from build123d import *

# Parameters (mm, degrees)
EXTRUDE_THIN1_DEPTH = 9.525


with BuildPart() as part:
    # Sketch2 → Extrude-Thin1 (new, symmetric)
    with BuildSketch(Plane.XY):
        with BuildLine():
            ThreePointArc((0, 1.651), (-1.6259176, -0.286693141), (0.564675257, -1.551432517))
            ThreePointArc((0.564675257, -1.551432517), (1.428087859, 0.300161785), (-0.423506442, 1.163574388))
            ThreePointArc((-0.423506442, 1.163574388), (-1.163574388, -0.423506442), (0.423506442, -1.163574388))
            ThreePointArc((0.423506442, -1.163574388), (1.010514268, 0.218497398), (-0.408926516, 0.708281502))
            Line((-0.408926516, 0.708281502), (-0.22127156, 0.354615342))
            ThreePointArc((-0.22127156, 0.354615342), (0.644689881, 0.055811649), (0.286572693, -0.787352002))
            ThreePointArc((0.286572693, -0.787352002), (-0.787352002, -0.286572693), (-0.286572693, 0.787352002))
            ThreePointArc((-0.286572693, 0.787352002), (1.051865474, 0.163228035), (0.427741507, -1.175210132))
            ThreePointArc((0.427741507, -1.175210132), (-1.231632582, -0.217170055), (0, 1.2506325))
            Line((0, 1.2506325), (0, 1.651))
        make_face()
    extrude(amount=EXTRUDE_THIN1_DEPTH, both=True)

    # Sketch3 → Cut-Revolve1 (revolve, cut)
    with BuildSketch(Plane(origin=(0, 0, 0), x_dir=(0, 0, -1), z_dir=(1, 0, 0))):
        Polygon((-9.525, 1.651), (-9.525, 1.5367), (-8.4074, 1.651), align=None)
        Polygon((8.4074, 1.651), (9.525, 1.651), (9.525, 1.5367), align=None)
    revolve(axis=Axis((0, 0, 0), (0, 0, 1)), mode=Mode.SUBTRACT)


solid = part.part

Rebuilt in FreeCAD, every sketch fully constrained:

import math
import FreeCAD as App
import Part
import Sketcher
from FreeCAD import Vector
Q = App.Units.Quantity


def add_polygon(sketch, points):
    """Adds a closed chain of lines whose ends are joined by coincident constraints."""
    first, n = sketch.GeometryCount, len(points)
    for a, b in zip(points, points[1:] + points[:1]):
        sketch.addGeometry(Part.LineSegment(App.Vector(*a, 0), App.Vector(*b, 0)), False)
    for i in range(n):
        sketch.addConstraint(Sketcher.Constraint("Coincident", first + i, 2, first + (i + 1) % n, 1))

doc = App.newDocument("Part")
params = doc.addObject("Spreadsheet::Sheet", "Params")
for row, (alias, value) in enumerate([
    ("sketch1_radius", "0.065 in"),
    ("pad1_length", "0.75 in"),
    ("sketch2_height", "0.044 in"),
    ("groove_angle", "360 deg"),
], start=1):
    params.set(f"A{row}", alias)
    params.set(f"B{row}", "=" + value)
    params.setAlias(f"B{row}", alias)

body = doc.addObject("PartDesign::Body", "Body")

# Sketch on XY plane
sketch1 = body.newObject("Sketcher::SketchObject", "Sketch")
sketch1.AttachmentSupport = (doc.getObject("XY_Plane"), [""])
sketch1.MapMode = "FlatFace"
sketch1.addGeometry([
    Part.ArcOfCircle(Part.Circle(Vector(0, 0, 0), Vector(0, 0, 1), 1.65), math.radians(90), math.radians(290)),  # 0
    Part.ArcOfCircle(Part.Circle(Vector(0.07, -0.19, 0), Vector(0, 0, 1), 1.44), math.radians(-70), math.radians(110)),  # 1
    Part.ArcOfCircle(Part.Circle(Vector(0, 0, 0), Vector(0, 0, 1), 1.24), math.radians(110), math.radians(290)),  # 2
    Part.ArcOfCircle(Part.Circle(Vector(0.07, -0.2, 0), Vector(0, 0, 1), 1.03), math.radians(-70), math.radians(118)),  # 3
    Part.LineSegment(Vector(-0.41, 0.71, 0), Vector(-0.22, 0.35, 0)),  # 4
    Part.ArcOfCircle(Part.Circle(Vector(0.07, -0.2, 0), Vector(0, 0, 1), 0.63), math.radians(-70), math.radians(118)),  # 5
    Part.ArcOfCircle(Part.Circle(Vector(0, 0, 0), Vector(0, 0, 1), 0.84), math.radians(110), math.radians(290)),  # 6
    Part.ArcOfCircle(Part.Circle(Vector(0.07, -0.19, 0), Vector(0, 0, 1), 1.04), math.radians(-70), math.radians(110)),  # 7
    Part.ArcOfCircle(Part.Circle(Vector(0, 0, 0), Vector(0, 0, 1), 1.25), math.radians(90), math.radians(290)),  # 8
    Part.LineSegment(Vector(0, 1.25, 0), Vector(0, 1.65, 0)),  # 9
], False)
sketch1.addConstraint([
    Sketcher.Constraint("Tangent", 0, 2, 1, 1),
    Sketcher.Constraint("Tangent", 1, 2, 2, 1),
    Sketcher.Constraint("Tangent", 2, 2, 3, 1),
    Sketcher.Constraint("Coincident", 3, 2, 4, 1),
    Sketcher.Constraint("Coincident", 4, 2, 5, 2),
    Sketcher.Constraint("Tangent", 5, 1, 6, 2),
    Sketcher.Constraint("Tangent", 6, 1, 7, 2),
    Sketcher.Constraint("Tangent", 7, 1, 8, 2),
    Sketcher.Constraint("Coincident", 8, 1, 9, 1),
    Sketcher.Constraint("Coincident", 9, 2, 0, 1),
    Sketcher.Constraint("Vertical", 9),
    Sketcher.Constraint("Coincident", 0, 3, -1, 1),
    Sketcher.Constraint("Coincident", 2, 3, -1, 1),
    Sketcher.Constraint("Coincident", 6, 3, -1, 1),
    Sketcher.Constraint("Coincident", 8, 3, -1, 1),
    Sketcher.Constraint("Coincident", 5, 3, 3, 3),
    Sketcher.Constraint("Coincident", 7, 3, 1, 3),
    Sketcher.Constraint("PointOnObject", 8, 1, -2),
    Sketcher.Constraint("Radius", 0, Q("0.065 in")),
    Sketcher.Constraint("Radius", 2, Q("1.23825 mm")),
    Sketcher.Constraint("Radius", 3, Q("1.026774 mm")),
    Sketcher.Constraint("Radius", 5, Q("0.626406 mm")),
    Sketcher.Constraint("DistanceX", 6, 1, 4, 2, Q("0.065301 mm")),
    Sketcher.Constraint("DistanceY", 1, 3, -1, 1, Q("0.193929 mm")),
    Sketcher.Constraint("DistanceX", -1, 1, 3, 3, Q("0.072329 mm")),
    Sketcher.Constraint("DistanceY", -1, 1, 3, 2, Q("0.708282 mm")),
])
sketch1.setExpression("Constraints[18]", "Params.sketch1_radius")
pad1 = body.newObject("PartDesign::Pad", "Pad")
pad1.Profile = sketch1
pad1.setExpression("Length", "Params.pad1_length")
pad1.Midplane = True

# Sketch on YZ plane
sketch2 = body.newObject("Sketcher::SketchObject", "Sketch001")
sketch2.AttachmentSupport = (doc.getObject("YZ_Plane"), [""])
sketch2.MapMode = "FlatFace"
add_polygon(sketch2, [(1.65, 9.53), (1.54, 9.53), (1.65, 8.41)])  # lines 0-2
add_polygon(sketch2, [(1.65, -9.53), (1.65, -8.41), (1.54, -9.53)])  # lines 3-5
sketch2.addConstraint([
    Sketcher.Constraint("Horizontal", 0),
    Sketcher.Constraint("Vertical", 2),
    Sketcher.Constraint("Vertical", 3),
    Sketcher.Constraint("Horizontal", 5),
    Sketcher.Constraint("Symmetric", 1, 2, 3, 2, -1),
    Sketcher.Constraint("Symmetric", 0, 2, 4, 2, -1),
    Sketcher.Constraint("DistanceY", 2, 1, 2, 2, Q("0.044 in")),
    Sketcher.Constraint("DistanceY", 4, 2, 0, 2, Q("0.75 in")),
    Sketcher.Constraint("DistanceX", 0, 2, 0, 1, Q("0.0045 in")),
    Sketcher.Constraint("DistanceX", -1, 1, 1, 2, Q("0.065 in")),
])
sketch2.setExpression("Constraints[12]", "Params.sketch2_height")
groove = body.newObject("PartDesign::Groove", "Groove")
groove.Profile = sketch2
groove.ReferenceAxis = (sketch2, ["V_Axis"])
groove.setExpression("Angle", "Params.groove_angle")

doc.recompute()
